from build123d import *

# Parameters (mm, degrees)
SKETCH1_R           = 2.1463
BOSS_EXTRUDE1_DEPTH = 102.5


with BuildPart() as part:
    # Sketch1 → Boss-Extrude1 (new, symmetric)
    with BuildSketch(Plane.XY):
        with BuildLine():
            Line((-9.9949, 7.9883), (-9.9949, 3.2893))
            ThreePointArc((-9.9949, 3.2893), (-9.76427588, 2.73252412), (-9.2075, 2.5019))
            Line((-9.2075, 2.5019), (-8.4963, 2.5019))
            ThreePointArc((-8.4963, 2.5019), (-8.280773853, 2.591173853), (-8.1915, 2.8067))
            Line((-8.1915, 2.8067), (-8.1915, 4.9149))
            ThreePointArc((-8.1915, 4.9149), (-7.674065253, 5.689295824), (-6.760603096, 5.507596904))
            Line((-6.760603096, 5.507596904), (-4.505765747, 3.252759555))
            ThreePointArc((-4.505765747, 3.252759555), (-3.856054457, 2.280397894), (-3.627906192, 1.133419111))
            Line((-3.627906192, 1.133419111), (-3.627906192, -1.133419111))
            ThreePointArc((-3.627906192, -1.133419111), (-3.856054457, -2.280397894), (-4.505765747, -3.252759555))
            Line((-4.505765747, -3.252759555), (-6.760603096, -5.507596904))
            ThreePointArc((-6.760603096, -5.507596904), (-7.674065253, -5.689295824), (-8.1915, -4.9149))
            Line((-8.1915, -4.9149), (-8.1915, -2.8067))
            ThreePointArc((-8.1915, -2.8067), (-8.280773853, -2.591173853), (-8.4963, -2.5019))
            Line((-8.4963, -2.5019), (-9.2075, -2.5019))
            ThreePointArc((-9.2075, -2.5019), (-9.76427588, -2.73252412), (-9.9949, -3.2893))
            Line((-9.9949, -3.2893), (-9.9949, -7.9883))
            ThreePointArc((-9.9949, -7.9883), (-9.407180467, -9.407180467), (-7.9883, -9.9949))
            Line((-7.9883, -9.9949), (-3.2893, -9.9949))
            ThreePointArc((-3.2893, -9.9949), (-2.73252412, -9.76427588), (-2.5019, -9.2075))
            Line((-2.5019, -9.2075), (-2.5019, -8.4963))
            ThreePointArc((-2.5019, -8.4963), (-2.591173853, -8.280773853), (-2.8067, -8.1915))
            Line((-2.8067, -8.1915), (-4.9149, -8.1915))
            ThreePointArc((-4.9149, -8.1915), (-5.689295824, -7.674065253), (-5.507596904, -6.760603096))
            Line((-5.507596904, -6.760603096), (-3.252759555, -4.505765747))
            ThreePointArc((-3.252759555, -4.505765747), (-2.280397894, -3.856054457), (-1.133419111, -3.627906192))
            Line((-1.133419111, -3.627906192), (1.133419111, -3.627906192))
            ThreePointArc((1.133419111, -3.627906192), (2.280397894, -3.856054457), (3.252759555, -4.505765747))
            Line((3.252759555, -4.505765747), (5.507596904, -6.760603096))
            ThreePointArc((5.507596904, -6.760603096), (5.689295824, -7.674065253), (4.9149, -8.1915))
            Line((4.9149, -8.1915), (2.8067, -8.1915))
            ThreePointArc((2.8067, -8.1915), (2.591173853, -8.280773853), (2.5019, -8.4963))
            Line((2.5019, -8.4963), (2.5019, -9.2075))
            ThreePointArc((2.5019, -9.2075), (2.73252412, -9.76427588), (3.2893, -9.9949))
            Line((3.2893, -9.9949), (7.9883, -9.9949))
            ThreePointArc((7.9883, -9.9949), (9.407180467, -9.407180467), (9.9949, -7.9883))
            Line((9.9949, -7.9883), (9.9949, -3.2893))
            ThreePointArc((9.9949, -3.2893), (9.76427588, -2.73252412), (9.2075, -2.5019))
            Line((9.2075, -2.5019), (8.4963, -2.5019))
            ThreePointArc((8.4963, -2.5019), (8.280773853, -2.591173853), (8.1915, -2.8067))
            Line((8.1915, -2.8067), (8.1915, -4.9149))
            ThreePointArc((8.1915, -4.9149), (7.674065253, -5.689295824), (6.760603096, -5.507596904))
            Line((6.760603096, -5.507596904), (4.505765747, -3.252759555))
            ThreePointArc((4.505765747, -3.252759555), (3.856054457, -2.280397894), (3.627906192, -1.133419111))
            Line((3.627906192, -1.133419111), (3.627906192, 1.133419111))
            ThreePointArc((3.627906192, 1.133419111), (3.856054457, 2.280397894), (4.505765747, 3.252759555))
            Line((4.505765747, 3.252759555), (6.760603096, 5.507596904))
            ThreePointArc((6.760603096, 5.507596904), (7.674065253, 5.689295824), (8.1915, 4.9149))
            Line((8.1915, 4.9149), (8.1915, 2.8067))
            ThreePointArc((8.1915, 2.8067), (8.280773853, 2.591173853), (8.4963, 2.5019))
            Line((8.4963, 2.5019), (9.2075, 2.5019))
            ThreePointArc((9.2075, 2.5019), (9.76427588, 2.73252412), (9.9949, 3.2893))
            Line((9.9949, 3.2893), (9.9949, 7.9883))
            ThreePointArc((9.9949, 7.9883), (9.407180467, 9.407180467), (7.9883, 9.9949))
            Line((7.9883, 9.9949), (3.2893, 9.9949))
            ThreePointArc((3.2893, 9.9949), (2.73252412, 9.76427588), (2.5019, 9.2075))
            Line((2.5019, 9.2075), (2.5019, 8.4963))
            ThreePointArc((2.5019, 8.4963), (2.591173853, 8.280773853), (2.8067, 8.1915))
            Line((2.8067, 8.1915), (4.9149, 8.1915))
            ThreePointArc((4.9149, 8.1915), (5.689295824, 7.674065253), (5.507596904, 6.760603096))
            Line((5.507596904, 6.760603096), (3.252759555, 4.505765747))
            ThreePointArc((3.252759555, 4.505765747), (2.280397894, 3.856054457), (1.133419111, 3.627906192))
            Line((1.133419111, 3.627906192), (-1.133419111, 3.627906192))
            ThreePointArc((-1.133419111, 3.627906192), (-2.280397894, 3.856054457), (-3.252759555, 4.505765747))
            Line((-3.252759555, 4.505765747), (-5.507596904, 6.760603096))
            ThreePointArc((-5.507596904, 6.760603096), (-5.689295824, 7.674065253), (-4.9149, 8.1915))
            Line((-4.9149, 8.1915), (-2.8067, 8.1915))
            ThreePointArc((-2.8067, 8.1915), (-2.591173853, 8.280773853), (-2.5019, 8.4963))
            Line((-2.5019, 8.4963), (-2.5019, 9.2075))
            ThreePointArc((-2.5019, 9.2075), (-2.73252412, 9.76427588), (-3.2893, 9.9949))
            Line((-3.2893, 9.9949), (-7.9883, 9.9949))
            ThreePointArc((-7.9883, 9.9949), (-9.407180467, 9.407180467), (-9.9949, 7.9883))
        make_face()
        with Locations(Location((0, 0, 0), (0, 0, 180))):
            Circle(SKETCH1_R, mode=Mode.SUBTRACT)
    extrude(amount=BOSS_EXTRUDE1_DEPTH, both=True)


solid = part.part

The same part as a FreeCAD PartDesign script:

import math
import FreeCAD as App
import Part
import Sketcher

V = App.Vector
Q = App.Units.Quantity

doc = App.newDocument("Part")
body = doc.addObject("PartDesign::Body", "Body")

# Sketch on XY plane
sketch1 = body.newObject("Sketcher::SketchObject", "Sketch")
sketch1.AttachmentSupport = (doc.getObject("XY_Plane"), [""])
sketch1.MapMode = "FlatFace"
sketch1.addGeometry([
    Part.LineSegment(V(-9.9949, 7.9883, 0), V(-9.9949, 3.2893, 0)),  # 0
    Part.ArcOfCircle(Part.Circle(V(-9.2075, 3.2893, 0), V(0, 0, 1), 0.7874), math.radians(180), math.radians(270)),  # 1
    Part.LineSegment(V(-9.2075, 2.5019, 0), V(-8.4963, 2.5019, 0)),  # 2
    Part.ArcOfCircle(Part.Circle(V(-8.4963, 2.8067, 0), V(0, 0, 1), 0.3048), math.radians(-90), math.radians(0)),  # 3
    Part.LineSegment(V(-8.1915, 2.8067, 0), V(-8.1915, 4.9149, 0)),  # 4
    Part.ArcOfCircle(Part.Circle(V(-7.3533, 4.9149, 0), V(0, 0, 1), 0.8382), math.radians(45), math.radians(180)),  # 5
    Part.LineSegment(V(-6.760603, 5.507597, 0), V(-4.505766, 3.25276, 0)),  # 6
    Part.ArcOfCircle(Part.Circle(V(-6.625106, 1.133419, 0), V(0, 0, 1), 2.9972), math.radians(0), math.radians(45)),  # 7
    Part.LineSegment(V(-3.627906, 1.133419, 0), V(-3.627906, -1.133419, 0)),  # 8
    Part.ArcOfCircle(Part.Circle(V(-6.625106, -1.133419, 0), V(0, 0, 1), 2.9972), math.radians(-45), math.radians(0)),  # 9
    Part.LineSegment(V(-4.505766, -3.25276, 0), V(-6.760603, -5.507597, 0)),  # 10
    Part.ArcOfCircle(Part.Circle(V(-7.3533, -4.9149, 0), V(0, 0, 1), 0.8382), math.radians(180), math.radians(315)),  # 11
    Part.LineSegment(V(-8.1915, -4.9149, 0), V(-8.1915, -2.8067, 0)),  # 12
    Part.ArcOfCircle(Part.Circle(V(-8.4963, -2.8067, 0), V(0, 0, 1), 0.3048), math.radians(0), math.radians(90)),  # 13
    Part.LineSegment(V(-8.4963, -2.5019, 0), V(-9.2075, -2.5019, 0)),  # 14
    Part.ArcOfCircle(Part.Circle(V(-9.2075, -3.2893, 0), V(0, 0, 1), 0.7874), math.radians(90), math.radians(180)),  # 15
    Part.LineSegment(V(-9.9949, -3.2893, 0), V(-9.9949, -7.9883, 0)),  # 16
    Part.ArcOfCircle(Part.Circle(V(-7.9883, -7.9883, 0), V(0, 0, 1), 2.0066), math.radians(180), math.radians(270)),  # 17
    Part.LineSegment(V(-7.9883, -9.9949, 0), V(-3.2893, -9.9949, 0)),  # 18
    Part.ArcOfCircle(Part.Circle(V(-3.2893, -9.2075, 0), V(0, 0, 1), 0.7874), math.radians(-90), math.radians(0)),  # 19
    Part.LineSegment(V(-2.5019, -9.2075, 0), V(-2.5019, -8.4963, 0)),  # 20
    Part.ArcOfCircle(Part.Circle(V(-2.8067, -8.4963, 0), V(0, 0, 1), 0.3048), math.radians(0), math.radians(90)),  # 21
    Part.LineSegment(V(-2.8067, -8.1915, 0), V(-4.9149, -8.1915, 0)),  # 22
    Part.ArcOfCircle(Part.Circle(V(-4.9149, -7.3533, 0), V(0, 0, 1), 0.8382), math.radians(135), math.radians(270)),  # 23
    Part.LineSegment(V(-5.507597, -6.760603, 0), V(-3.25276, -4.505766, 0)),  # 24
    Part.ArcOfCircle(Part.Circle(V(-1.133419, -6.625106, 0), V(0, 0, 1), 2.9972), math.radians(90), math.radians(135)),  # 25
    Part.LineSegment(V(-1.133419, -3.627906, 0), V(1.133419, -3.627906, 0)),  # 26
    Part.ArcOfCircle(Part.Circle(V(1.133419, -6.625106, 0), V(0, 0, 1), 2.9972), math.radians(45), math.radians(90)),  # 27
    Part.LineSegment(V(3.25276, -4.505766, 0), V(5.507597, -6.760603, 0)),  # 28
    Part.ArcOfCircle(Part.Circle(V(4.9149, -7.3533, 0), V(0, 0, 1), 0.8382), math.radians(-90), math.radians(45)),  # 29
    Part.LineSegment(V(4.9149, -8.1915, 0), V(2.8067, -8.1915, 0)),  # 30
    Part.ArcOfCircle(Part.Circle(V(2.8067, -8.4963, 0), V(0, 0, 1), 0.3048), math.radians(90), math.radians(180)),  # 31
    Part.LineSegment(V(2.5019, -8.4963, 0), V(2.5019, -9.2075, 0)),  # 32
    Part.ArcOfCircle(Part.Circle(V(3.2893, -9.2075, 0), V(0, 0, 1), 0.7874), math.radians(180), math.radians(270)),  # 33
    Part.LineSegment(V(3.2893, -9.9949, 0), V(7.9883, -9.9949, 0)),  # 34
    Part.ArcOfCircle(Part.Circle(V(7.9883, -7.9883, 0), V(0, 0, 1), 2.0066), math.radians(-90), math.radians(0)),  # 35
    Part.LineSegment(V(9.9949, -7.9883, 0), V(9.9949, -3.2893, 0)),  # 36
    Part.ArcOfCircle(Part.Circle(V(9.2075, -3.2893, 0), V(0, 0, 1), 0.7874), math.radians(0), math.radians(90)),  # 37
    Part.LineSegment(V(9.2075, -2.5019, 0), V(8.4963, -2.5019, 0)),  # 38
    Part.ArcOfCircle(Part.Circle(V(8.4963, -2.8067, 0), V(0, 0, 1), 0.3048), math.radians(90), math.radians(180)),  # 39
    Part.LineSegment(V(8.1915, -2.8067, 0), V(8.1915, -4.9149, 0)),  # 40
    Part.ArcOfCircle(Part.Circle(V(7.3533, -4.9149, 0), V(0, 0, 1), 0.8382), math.radians(-135), math.radians(0)),  # 41
    Part.LineSegment(V(6.760603, -5.507597, 0), V(4.505766, -3.25276, 0)),  # 42
    Part.ArcOfCircle(Part.Circle(V(6.625106, -1.133419, 0), V(0, 0, 1), 2.9972), math.radians(180), math.radians(225)),  # 43
    Part.LineSegment(V(3.627906, -1.133419, 0), V(3.627906, 1.133419, 0)),  # 44
    Part.ArcOfCircle(Part.Circle(V(6.625106, 1.133419, 0), V(0, 0, 1), 2.9972), math.radians(135), math.radians(180)),  # 45
    Part.LineSegment(V(4.505766, 3.25276, 0), V(6.760603, 5.507597, 0)),  # 46
    Part.ArcOfCircle(Part.Circle(V(7.3533, 4.9149, 0), V(0, 0, 1), 0.8382), math.radians(0), math.radians(135)),  # 47
    Part.LineSegment(V(8.1915, 4.9149, 0), V(8.1915, 2.8067, 0)),  # 48
    Part.ArcOfCircle(Part.Circle(V(8.4963, 2.8067, 0), V(0, 0, 1), 0.3048), math.radians(180), math.radians(270)),  # 49
    Part.LineSegment(V(8.4963, 2.5019, 0), V(9.2075, 2.5019, 0)),  # 50
    Part.ArcOfCircle(Part.Circle(V(9.2075, 3.2893, 0), V(0, 0, 1), 0.7874), math.radians(-90), math.radians(0)),  # 51
    Part.LineSegment(V(9.9949, 3.2893, 0), V(9.9949, 7.9883, 0)),  # 52
    Part.ArcOfCircle(Part.Circle(V(7.9883, 7.9883, 0), V(0, 0, 1), 2.0066), math.radians(0), math.radians(90)),  # 53
    Part.LineSegment(V(7.9883, 9.9949, 0), V(3.2893, 9.9949, 0)),  # 54
    Part.ArcOfCircle(Part.Circle(V(3.2893, 9.2075, 0), V(0, 0, 1), 0.7874), math.radians(90), math.radians(180)),  # 55
    Part.LineSegment(V(2.5019, 9.2075, 0), V(2.5019, 8.4963, 0)),  # 56
    Part.ArcOfCircle(Part.Circle(V(2.8067, 8.4963, 0), V(0, 0, 1), 0.3048), math.radians(180), math.radians(270)),  # 57
    Part.LineSegment(V(2.8067, 8.1915, 0), V(4.9149, 8.1915, 0)),  # 58
    Part.ArcOfCircle(Part.Circle(V(4.9149, 7.3533, 0), V(0, 0, 1), 0.8382), math.radians(-45), math.radians(90)),  # 59
    Part.LineSegment(V(5.507597, 6.760603, 0), V(3.25276, 4.505766, 0)),  # 60
    Part.ArcOfCircle(Part.Circle(V(1.133419, 6.625106, 0), V(0, 0, 1), 2.9972), math.radians(-90), math.radians(-45)),  # 61
    Part.LineSegment(V(1.133419, 3.627906, 0), V(-1.133419, 3.627906, 0)),  # 62
    Part.ArcOfCircle(Part.Circle(V(-1.133419, 6.625106, 0), V(0, 0, 1), 2.9972), math.radians(-135), math.radians(-90)),  # 63
    Part.LineSegment(V(-3.25276, 4.505766, 0), V(-5.507597, 6.760603, 0)),  # 64
    Part.ArcOfCircle(Part.Circle(V(-4.9149, 7.3533, 0), V(0, 0, 1), 0.8382), math.radians(90), math.radians(225)),  # 65
    Part.LineSegment(V(-4.9149, 8.1915, 0), V(-2.8067, 8.1915, 0)),  # 66
    Part.ArcOfCircle(Part.Circle(V(-2.8067, 8.4963, 0), V(0, 0, 1), 0.3048), math.radians(-90), math.radians(0)),  # 67
    Part.LineSegment(V(-2.5019, 8.4963, 0), V(-2.5019, 9.2075, 0)),  # 68
    Part.ArcOfCircle(Part.Circle(V(-3.2893, 9.2075, 0), V(0, 0, 1), 0.7874), math.radians(0), math.radians(90)),  # 69
    Part.LineSegment(V(-3.2893, 9.9949, 0), V(-7.9883, 9.9949, 0)),  # 70
    Part.ArcOfCircle(Part.Circle(V(-7.9883, 7.9883, 0), V(0, 0, 1), 2.0066), math.radians(90), math.radians(180)),  # 71
    Part.Circle(V(0, 0, 0), V(0, 0, 1), 2.1463),  # 72
], False)
sketch1.addConstraint([
    Sketcher.Constraint("Tangent", 0, 2, 1, 1),
    Sketcher.Constraint("Tangent", 1, 2, 2, 1),
    Sketcher.Constraint("Tangent", 2, 2, 3, 1),
    Sketcher.Constraint("Tangent", 3, 2, 4, 1),
    Sketcher.Constraint("Tangent", 4, 2, 5, 2),
    Sketcher.Constraint("Tangent", 5, 1, 6, 1),
    Sketcher.Constraint("Tangent", 6, 2, 7, 2),
    Sketcher.Constraint("Tangent", 7, 1, 8, 1),
    Sketcher.Constraint("Tangent", 8, 2, 9, 2),
    Sketcher.Constraint("Tangent", 9, 1, 10, 1),
    Sketcher.Constraint("Tangent", 10, 2, 11, 2),
    Sketcher.Constraint("Tangent", 11, 1, 12, 1),
    Sketcher.Constraint("Tangent", 12, 2, 13, 1),
    Sketcher.Constraint("Tangent", 13, 2, 14, 1),
    Sketcher.Constraint("Tangent", 14, 2, 15, 1),
    Sketcher.Constraint("Tangent", 15, 2, 16, 1),
    Sketcher.Constraint("Tangent", 16, 2, 17, 1),
    Sketcher.Constraint("Tangent", 17, 2, 18, 1),
    Sketcher.Constraint("Tangent", 18, 2, 19, 1),
    Sketcher.Constraint("Tangent", 19, 2, 20, 1),
    Sketcher.Constraint("Tangent", 20, 2, 21, 1),
    Sketcher.Constraint("Tangent", 21, 2, 22, 1),
    Sketcher.Constraint("Tangent", 22, 2, 23, 2),
    Sketcher.Constraint("Tangent", 23, 1, 24, 1),
    Sketcher.Constraint("Tangent", 24, 2, 25, 2),
    Sketcher.Constraint("Tangent", 25, 1, 26, 1),
    Sketcher.Constraint("Tangent", 26, 2, 27, 2),
    Sketcher.Constraint("Tangent", 27, 1, 28, 1),
    Sketcher.Constraint("Tangent", 28, 2, 29, 2),
    Sketcher.Constraint("Tangent", 29, 1, 30, 1),
    Sketcher.Constraint("Tangent", 30, 2, 31, 1),
    Sketcher.Constraint("Tangent", 31, 2, 32, 1),
    Sketcher.Constraint("Tangent", 32, 2, 33, 1),
    Sketcher.Constraint("Tangent", 33, 2, 34, 1),
    Sketcher.Constraint("Tangent", 34, 2, 35, 1),
    Sketcher.Constraint("Tangent", 35, 2, 36, 1),
    Sketcher.Constraint("Tangent", 36, 2, 37, 1),
    Sketcher.Constraint("Tangent", 37, 2, 38, 1),
    Sketcher.Constraint("Tangent", 38, 2, 39, 1),
    Sketcher.Constraint("Tangent", 39, 2, 40, 1),
    Sketcher.Constraint("Tangent", 40, 2, 41, 2),
    Sketcher.Constraint("Tangent", 41, 1, 42, 1),
    Sketcher.Constraint("Tangent", 42, 2, 43, 2),
    Sketcher.Constraint("Tangent", 43, 1, 44, 1),
    Sketcher.Constraint("Tangent", 44, 2, 45, 2),
    Sketcher.Constraint("Tangent", 45, 1, 46, 1),
    Sketcher.Constraint("Tangent", 46, 2, 47, 2),
    Sketcher.Constraint("Tangent", 47, 1, 48, 1),
    Sketcher.Constraint("Tangent", 48, 2, 49, 1),
    Sketcher.Constraint("Tangent", 49, 2, 50, 1),
    Sketcher.Constraint("Tangent", 50, 2, 51, 1),
    Sketcher.Constraint("Tangent", 51, 2, 52, 1),
    Sketcher.Constraint("Tangent", 52, 2, 53, 1),
    Sketcher.Constraint("Tangent", 53, 2, 54, 1),
    Sketcher.Constraint("Tangent", 54, 2, 55, 1),
    Sketcher.Constraint("Tangent", 55, 2, 56, 1),
    Sketcher.Constraint("Tangent", 56, 2, 57, 1),
    Sketcher.Constraint("Tangent", 57, 2, 58, 1),
    Sketcher.Constraint("Tangent", 58, 2, 59, 2),
    Sketcher.Constraint("Tangent", 59, 1, 60, 1),
    Sketcher.Constraint("Tangent", 60, 2, 61, 2),
    Sketcher.Constraint("Tangent", 61, 1, 62, 1),
    Sketcher.Constraint("Tangent", 62, 2, 63, 2),
    Sketcher.Constraint("Tangent", 63, 1, 64, 1),
    Sketcher.Constraint("Tangent", 64, 2, 65, 2),
    Sketcher.Constraint("Tangent", 65, 1, 66, 1),
    Sketcher.Constraint("Tangent", 66, 2, 67, 1),
    Sketcher.Constraint("Tangent", 67, 2, 68, 1),
    Sketcher.Constraint("Tangent", 68, 2, 69, 1),
    Sketcher.Constraint("Tangent", 69, 2, 70, 1),
    Sketcher.Constraint("Tangent", 70, 2, 71, 1),
    Sketcher.Constraint("Tangent", 71, 2, 0, 1),
    Sketcher.Constraint("Vertical", 0),
    Sketcher.Constraint("Horizontal", 2),
    Sketcher.Constraint("Vertical", 4),
    Sketcher.Constraint("Vertical", 8),
    Sketcher.Constraint("Vertical", 12),
    Sketcher.Constraint("Horizontal", 14),
    Sketcher.Constraint("Vertical", 16),
    Sketcher.Constraint("Horizontal", 18),
    Sketcher.Constraint("Vertical", 20),
    Sketcher.Constraint("Horizontal", 22),
    Sketcher.Constraint("Horizontal", 26),
    Sketcher.Constraint("Horizontal", 30),
    Sketcher.Constraint("Vertical", 32),
    Sketcher.Constraint("Horizontal", 34),
    Sketcher.Constraint("Vertical", 36),
    Sketcher.Constraint("Horizontal", 38),
    Sketcher.Constraint("Vertical", 40),
    Sketcher.Constraint("Vertical", 44),
    Sketcher.Constraint("Vertical", 48),
    Sketcher.Constraint("Horizontal", 50),
    Sketcher.Constraint("Vertical", 52),
    Sketcher.Constraint("Horizontal", 54),
    Sketcher.Constraint("Vertical", 56),
    Sketcher.Constraint("Horizontal", 58),
    Sketcher.Constraint("Horizontal", 62),
    Sketcher.Constraint("Horizontal", 66),
    Sketcher.Constraint("Vertical", 68),
    Sketcher.Constraint("Horizontal", 70),
    Sketcher.Constraint("Coincident", 72, 3, -1, 1),
    Sketcher.Constraint("Equal", 7, 9),
    Sketcher.Constraint("Equal", 5, 11),
    Sketcher.Constraint("Equal", 3, 13),
    Sketcher.Constraint("Equal", 1, 15),
    Sketcher.Constraint("Equal", 15, 19),
    Sketcher.Constraint("Equal", 13, 21),
    Sketcher.Constraint("Equal", 11, 23),
    Sketcher.Constraint("Equal", 9, 25),
    Sketcher.Constraint("Equal", 25, 27),
    Sketcher.Constraint("Equal", 23, 29),
    Sketcher.Constraint("Equal", 21, 31),
    Sketcher.Constraint("Equal", 19, 33),
    Sketcher.Constraint("Equal", 17, 35),
    Sketcher.Constraint("Equal", 33, 37),
    Sketcher.Constraint("Equal", 31, 39),
    Sketcher.Constraint("Equal", 29, 41),
    Sketcher.Constraint("Equal", 27, 43),
    Sketcher.Constraint("Equal", 43, 45),
    Sketcher.Constraint("Equal", 41, 47),
    Sketcher.Constraint("Equal", 39, 49),
    Sketcher.Constraint("Equal", 37, 51),
    Sketcher.Constraint("Equal", 35, 53),
    Sketcher.Constraint("Equal", 51, 55),
    Sketcher.Constraint("Equal", 49, 57),
    Sketcher.Constraint("Equal", 47, 59),
    Sketcher.Constraint("Equal", 45, 61),
    Sketcher.Constraint("Equal", 61, 63),
    Sketcher.Constraint("Equal", 59, 65),
    Sketcher.Constraint("Equal", 57, 67),
    Sketcher.Constraint("Equal", 55, 69),
    Sketcher.Constraint("Equal", 53, 71),
    Sketcher.Constraint("Symmetric", 1, 3, 37, 3, -1, 1),
    Sketcher.Constraint("Symmetric", 5, 3, 41, 3, -1, 1),
    Sketcher.Constraint("Symmetric", 7, 3, 43, 3, -1, 1),
    Sketcher.Constraint("Symmetric", 11, 3, 47, 3, -1, 1),
    Sketcher.Constraint("Symmetric", 15, 3, 51, 3, -1, 1),
    Sketcher.Constraint("Symmetric", 19, 3, 55, 3, -1, 1),
    Sketcher.Constraint("Symmetric", 23, 3, 59, 3, -1, 1),
    Sketcher.Constraint("Symmetric", 25, 3, 61, 3, -1, 1),
    Sketcher.Constraint("Symmetric", 29, 3, 65, 3, -1, 1),
    Sketcher.Constraint("Symmetric", 33, 3, 69, 3, -1, 1),
    Sketcher.Constraint("Symmetric", 23, 3, 29, 3, -2),
    Sketcher.Constraint("Symmetric", 19, 3, 33, 3, -2),
    Sketcher.Constraint("Symmetric", 15, 3, 37, 3, -2),
    Sketcher.Constraint("Symmetric", 11, 3, 41, 3, -2),
    Sketcher.Constraint("Perpendicular", 6, 10),
    Sketcher.Constraint("Parallel", 10, 24),
    Sketcher.Constraint("Perpendicular", 24, 28),
    Sketcher.Constraint("Perpendicular", 42, 46),
    Sketcher.Constraint("Perpendicular", 60, 64),
    Sketcher.Constraint("Horizontal", 9, 3, 43, 3),
    Sketcher.Constraint("Equal", 70, 0),
    Sketcher.Constraint("Equal", 66, 4),
    Sketcher.Constraint("Equal", 62, 8),
    Sketcher.Constraint("Equal", 50, 20),
    Sketcher.Constraint("Equal", 10, 24),
    Sketcher.Constraint("Diameter", 72, Q("0.169 in")),
    Sketcher.Constraint("Radius", 1, Q("0.031 in")),
    Sketcher.Constraint("Radius", 3, Q("0.012 in")),
    Sketcher.Constraint("Radius", 5, Q("0.033 in")),
    Sketcher.Constraint("Radius", 7, Q("0.118 in")),
    Sketcher.Constraint("Radius", 17, Q("0.079 in")),
    Sketcher.Constraint("DistanceX", 2, 1, 2, 2, Q("0.028 in")),
    Sketcher.Constraint("DistanceX", 18, 1, 18, 2, Q("0.185 in")),
    Sketcher.Constraint("DistanceX", 22, 2, 22, 1, Q("0.083 in")),
    Sketcher.Constraint("DistanceX", 1, 3, -1, 1, Q("0.3625 in")),
    Sketcher.Constraint("DistanceX", 26, 1, 26, 2, 2.266838),
])
pad1 = body.newObject("PartDesign::Pad", "Pad")
pad1.Profile = sketch1
pad1.Length = 205
pad1.Midplane = True

doc.recompute()
